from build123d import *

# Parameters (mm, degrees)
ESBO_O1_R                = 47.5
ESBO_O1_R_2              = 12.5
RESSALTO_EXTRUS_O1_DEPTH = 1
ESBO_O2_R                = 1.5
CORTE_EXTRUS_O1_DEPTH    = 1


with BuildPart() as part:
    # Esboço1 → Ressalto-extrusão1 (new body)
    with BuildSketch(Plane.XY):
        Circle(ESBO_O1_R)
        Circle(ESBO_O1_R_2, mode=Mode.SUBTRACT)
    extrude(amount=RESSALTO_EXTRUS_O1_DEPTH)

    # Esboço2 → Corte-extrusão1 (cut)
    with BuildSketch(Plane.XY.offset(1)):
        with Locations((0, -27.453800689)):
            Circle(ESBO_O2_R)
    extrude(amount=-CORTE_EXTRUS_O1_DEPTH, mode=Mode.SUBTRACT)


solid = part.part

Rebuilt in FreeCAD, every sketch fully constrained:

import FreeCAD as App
import Part
import Sketcher
from FreeCAD import Vector

doc = App.newDocument("Part")
params = doc.addObject("Spreadsheet::Sheet", "Params")
for row, (alias, value) in enumerate([
    ("sketch1_diameter", "95 mm"),
    ("sketch1_diameter2", "25 mm"),
    ("pad1_length", "1 mm"),
    ("sketch2_diameter", "3 mm"),
    ("pocket1_length", "1 mm"),
], start=1):
    params.set(f"A{row}", alias)
    params.set(f"B{row}", "=" + value)
    params.setAlias(f"B{row}", alias)

body = doc.addObject("PartDesign::Body", "Body")

# Sketch on XY plane
sketch1 = doc.addObject("Sketcher::SketchObject", "Sketch")
body.addObject(sketch1)
sketch1.AttachmentSupport = (doc.XY_Plane, [""])
sketch1.MapMode = "FlatFace"
sketch1.addGeometry([
    Part.Circle(Vector(0, 0, 0), Vector(0, 0, 1), 48),
    Part.Circle(Vector(0, 0, 0), Vector(0, 0, 1), 12),
], False)
sketch1.addConstraint([
    Sketcher.Constraint("Coincident", 0, 3, -1, 1),
    Sketcher.Constraint("Coincident", 1, 3, -1, 1),
    Sketcher.Constraint("Diameter", 0, 95.0),
    Sketcher.Constraint("Diameter", 1, 25.0),
])
sketch1.setExpression("Constraints[2]", "Params.sketch1_diameter")
sketch1.setExpression("Constraints[3]", "Params.sketch1_diameter2")
pad1 = doc.addObject("PartDesign::Pad", "Pad")
body.addObject(pad1)
pad1.Profile = sketch1
pad1.setExpression("Length", "Params.pad1_length")

# Sketch on XY plane
sketch2 = doc.addObject("Sketcher::SketchObject", "Sketch001")
body.addObject(sketch2)
sketch2.AttachmentSupport = (doc.XY_Plane, [""])
sketch2.MapMode = "FlatFace"
sketch2.AttachmentOffset = App.Placement(Vector(0, 0, 1), App.Rotation())
sketch2.addGeometry(Part.Circle(Vector(0, -27.5, 0), Vector(0, 0, 1), 1.5), False)
sketch2.addConstraint([
    Sketcher.Constraint("PointOnObject", 0, 3, -2),
    Sketcher.Constraint("Diameter", 0, 3.0),
    Sketcher.Constraint("DistanceY", 0, 3, -1, 1, 27.453801),
])
sketch2.setExpression("Constraints[1]", "Params.sketch2_diameter")
pocket1 = doc.addObject("PartDesign::Pocket", "Pocket")
body.addObject(pocket1)
pocket1.Profile = sketch2
pocket1.setExpression("Length", "Params.pocket1_length")

doc.recompute()
